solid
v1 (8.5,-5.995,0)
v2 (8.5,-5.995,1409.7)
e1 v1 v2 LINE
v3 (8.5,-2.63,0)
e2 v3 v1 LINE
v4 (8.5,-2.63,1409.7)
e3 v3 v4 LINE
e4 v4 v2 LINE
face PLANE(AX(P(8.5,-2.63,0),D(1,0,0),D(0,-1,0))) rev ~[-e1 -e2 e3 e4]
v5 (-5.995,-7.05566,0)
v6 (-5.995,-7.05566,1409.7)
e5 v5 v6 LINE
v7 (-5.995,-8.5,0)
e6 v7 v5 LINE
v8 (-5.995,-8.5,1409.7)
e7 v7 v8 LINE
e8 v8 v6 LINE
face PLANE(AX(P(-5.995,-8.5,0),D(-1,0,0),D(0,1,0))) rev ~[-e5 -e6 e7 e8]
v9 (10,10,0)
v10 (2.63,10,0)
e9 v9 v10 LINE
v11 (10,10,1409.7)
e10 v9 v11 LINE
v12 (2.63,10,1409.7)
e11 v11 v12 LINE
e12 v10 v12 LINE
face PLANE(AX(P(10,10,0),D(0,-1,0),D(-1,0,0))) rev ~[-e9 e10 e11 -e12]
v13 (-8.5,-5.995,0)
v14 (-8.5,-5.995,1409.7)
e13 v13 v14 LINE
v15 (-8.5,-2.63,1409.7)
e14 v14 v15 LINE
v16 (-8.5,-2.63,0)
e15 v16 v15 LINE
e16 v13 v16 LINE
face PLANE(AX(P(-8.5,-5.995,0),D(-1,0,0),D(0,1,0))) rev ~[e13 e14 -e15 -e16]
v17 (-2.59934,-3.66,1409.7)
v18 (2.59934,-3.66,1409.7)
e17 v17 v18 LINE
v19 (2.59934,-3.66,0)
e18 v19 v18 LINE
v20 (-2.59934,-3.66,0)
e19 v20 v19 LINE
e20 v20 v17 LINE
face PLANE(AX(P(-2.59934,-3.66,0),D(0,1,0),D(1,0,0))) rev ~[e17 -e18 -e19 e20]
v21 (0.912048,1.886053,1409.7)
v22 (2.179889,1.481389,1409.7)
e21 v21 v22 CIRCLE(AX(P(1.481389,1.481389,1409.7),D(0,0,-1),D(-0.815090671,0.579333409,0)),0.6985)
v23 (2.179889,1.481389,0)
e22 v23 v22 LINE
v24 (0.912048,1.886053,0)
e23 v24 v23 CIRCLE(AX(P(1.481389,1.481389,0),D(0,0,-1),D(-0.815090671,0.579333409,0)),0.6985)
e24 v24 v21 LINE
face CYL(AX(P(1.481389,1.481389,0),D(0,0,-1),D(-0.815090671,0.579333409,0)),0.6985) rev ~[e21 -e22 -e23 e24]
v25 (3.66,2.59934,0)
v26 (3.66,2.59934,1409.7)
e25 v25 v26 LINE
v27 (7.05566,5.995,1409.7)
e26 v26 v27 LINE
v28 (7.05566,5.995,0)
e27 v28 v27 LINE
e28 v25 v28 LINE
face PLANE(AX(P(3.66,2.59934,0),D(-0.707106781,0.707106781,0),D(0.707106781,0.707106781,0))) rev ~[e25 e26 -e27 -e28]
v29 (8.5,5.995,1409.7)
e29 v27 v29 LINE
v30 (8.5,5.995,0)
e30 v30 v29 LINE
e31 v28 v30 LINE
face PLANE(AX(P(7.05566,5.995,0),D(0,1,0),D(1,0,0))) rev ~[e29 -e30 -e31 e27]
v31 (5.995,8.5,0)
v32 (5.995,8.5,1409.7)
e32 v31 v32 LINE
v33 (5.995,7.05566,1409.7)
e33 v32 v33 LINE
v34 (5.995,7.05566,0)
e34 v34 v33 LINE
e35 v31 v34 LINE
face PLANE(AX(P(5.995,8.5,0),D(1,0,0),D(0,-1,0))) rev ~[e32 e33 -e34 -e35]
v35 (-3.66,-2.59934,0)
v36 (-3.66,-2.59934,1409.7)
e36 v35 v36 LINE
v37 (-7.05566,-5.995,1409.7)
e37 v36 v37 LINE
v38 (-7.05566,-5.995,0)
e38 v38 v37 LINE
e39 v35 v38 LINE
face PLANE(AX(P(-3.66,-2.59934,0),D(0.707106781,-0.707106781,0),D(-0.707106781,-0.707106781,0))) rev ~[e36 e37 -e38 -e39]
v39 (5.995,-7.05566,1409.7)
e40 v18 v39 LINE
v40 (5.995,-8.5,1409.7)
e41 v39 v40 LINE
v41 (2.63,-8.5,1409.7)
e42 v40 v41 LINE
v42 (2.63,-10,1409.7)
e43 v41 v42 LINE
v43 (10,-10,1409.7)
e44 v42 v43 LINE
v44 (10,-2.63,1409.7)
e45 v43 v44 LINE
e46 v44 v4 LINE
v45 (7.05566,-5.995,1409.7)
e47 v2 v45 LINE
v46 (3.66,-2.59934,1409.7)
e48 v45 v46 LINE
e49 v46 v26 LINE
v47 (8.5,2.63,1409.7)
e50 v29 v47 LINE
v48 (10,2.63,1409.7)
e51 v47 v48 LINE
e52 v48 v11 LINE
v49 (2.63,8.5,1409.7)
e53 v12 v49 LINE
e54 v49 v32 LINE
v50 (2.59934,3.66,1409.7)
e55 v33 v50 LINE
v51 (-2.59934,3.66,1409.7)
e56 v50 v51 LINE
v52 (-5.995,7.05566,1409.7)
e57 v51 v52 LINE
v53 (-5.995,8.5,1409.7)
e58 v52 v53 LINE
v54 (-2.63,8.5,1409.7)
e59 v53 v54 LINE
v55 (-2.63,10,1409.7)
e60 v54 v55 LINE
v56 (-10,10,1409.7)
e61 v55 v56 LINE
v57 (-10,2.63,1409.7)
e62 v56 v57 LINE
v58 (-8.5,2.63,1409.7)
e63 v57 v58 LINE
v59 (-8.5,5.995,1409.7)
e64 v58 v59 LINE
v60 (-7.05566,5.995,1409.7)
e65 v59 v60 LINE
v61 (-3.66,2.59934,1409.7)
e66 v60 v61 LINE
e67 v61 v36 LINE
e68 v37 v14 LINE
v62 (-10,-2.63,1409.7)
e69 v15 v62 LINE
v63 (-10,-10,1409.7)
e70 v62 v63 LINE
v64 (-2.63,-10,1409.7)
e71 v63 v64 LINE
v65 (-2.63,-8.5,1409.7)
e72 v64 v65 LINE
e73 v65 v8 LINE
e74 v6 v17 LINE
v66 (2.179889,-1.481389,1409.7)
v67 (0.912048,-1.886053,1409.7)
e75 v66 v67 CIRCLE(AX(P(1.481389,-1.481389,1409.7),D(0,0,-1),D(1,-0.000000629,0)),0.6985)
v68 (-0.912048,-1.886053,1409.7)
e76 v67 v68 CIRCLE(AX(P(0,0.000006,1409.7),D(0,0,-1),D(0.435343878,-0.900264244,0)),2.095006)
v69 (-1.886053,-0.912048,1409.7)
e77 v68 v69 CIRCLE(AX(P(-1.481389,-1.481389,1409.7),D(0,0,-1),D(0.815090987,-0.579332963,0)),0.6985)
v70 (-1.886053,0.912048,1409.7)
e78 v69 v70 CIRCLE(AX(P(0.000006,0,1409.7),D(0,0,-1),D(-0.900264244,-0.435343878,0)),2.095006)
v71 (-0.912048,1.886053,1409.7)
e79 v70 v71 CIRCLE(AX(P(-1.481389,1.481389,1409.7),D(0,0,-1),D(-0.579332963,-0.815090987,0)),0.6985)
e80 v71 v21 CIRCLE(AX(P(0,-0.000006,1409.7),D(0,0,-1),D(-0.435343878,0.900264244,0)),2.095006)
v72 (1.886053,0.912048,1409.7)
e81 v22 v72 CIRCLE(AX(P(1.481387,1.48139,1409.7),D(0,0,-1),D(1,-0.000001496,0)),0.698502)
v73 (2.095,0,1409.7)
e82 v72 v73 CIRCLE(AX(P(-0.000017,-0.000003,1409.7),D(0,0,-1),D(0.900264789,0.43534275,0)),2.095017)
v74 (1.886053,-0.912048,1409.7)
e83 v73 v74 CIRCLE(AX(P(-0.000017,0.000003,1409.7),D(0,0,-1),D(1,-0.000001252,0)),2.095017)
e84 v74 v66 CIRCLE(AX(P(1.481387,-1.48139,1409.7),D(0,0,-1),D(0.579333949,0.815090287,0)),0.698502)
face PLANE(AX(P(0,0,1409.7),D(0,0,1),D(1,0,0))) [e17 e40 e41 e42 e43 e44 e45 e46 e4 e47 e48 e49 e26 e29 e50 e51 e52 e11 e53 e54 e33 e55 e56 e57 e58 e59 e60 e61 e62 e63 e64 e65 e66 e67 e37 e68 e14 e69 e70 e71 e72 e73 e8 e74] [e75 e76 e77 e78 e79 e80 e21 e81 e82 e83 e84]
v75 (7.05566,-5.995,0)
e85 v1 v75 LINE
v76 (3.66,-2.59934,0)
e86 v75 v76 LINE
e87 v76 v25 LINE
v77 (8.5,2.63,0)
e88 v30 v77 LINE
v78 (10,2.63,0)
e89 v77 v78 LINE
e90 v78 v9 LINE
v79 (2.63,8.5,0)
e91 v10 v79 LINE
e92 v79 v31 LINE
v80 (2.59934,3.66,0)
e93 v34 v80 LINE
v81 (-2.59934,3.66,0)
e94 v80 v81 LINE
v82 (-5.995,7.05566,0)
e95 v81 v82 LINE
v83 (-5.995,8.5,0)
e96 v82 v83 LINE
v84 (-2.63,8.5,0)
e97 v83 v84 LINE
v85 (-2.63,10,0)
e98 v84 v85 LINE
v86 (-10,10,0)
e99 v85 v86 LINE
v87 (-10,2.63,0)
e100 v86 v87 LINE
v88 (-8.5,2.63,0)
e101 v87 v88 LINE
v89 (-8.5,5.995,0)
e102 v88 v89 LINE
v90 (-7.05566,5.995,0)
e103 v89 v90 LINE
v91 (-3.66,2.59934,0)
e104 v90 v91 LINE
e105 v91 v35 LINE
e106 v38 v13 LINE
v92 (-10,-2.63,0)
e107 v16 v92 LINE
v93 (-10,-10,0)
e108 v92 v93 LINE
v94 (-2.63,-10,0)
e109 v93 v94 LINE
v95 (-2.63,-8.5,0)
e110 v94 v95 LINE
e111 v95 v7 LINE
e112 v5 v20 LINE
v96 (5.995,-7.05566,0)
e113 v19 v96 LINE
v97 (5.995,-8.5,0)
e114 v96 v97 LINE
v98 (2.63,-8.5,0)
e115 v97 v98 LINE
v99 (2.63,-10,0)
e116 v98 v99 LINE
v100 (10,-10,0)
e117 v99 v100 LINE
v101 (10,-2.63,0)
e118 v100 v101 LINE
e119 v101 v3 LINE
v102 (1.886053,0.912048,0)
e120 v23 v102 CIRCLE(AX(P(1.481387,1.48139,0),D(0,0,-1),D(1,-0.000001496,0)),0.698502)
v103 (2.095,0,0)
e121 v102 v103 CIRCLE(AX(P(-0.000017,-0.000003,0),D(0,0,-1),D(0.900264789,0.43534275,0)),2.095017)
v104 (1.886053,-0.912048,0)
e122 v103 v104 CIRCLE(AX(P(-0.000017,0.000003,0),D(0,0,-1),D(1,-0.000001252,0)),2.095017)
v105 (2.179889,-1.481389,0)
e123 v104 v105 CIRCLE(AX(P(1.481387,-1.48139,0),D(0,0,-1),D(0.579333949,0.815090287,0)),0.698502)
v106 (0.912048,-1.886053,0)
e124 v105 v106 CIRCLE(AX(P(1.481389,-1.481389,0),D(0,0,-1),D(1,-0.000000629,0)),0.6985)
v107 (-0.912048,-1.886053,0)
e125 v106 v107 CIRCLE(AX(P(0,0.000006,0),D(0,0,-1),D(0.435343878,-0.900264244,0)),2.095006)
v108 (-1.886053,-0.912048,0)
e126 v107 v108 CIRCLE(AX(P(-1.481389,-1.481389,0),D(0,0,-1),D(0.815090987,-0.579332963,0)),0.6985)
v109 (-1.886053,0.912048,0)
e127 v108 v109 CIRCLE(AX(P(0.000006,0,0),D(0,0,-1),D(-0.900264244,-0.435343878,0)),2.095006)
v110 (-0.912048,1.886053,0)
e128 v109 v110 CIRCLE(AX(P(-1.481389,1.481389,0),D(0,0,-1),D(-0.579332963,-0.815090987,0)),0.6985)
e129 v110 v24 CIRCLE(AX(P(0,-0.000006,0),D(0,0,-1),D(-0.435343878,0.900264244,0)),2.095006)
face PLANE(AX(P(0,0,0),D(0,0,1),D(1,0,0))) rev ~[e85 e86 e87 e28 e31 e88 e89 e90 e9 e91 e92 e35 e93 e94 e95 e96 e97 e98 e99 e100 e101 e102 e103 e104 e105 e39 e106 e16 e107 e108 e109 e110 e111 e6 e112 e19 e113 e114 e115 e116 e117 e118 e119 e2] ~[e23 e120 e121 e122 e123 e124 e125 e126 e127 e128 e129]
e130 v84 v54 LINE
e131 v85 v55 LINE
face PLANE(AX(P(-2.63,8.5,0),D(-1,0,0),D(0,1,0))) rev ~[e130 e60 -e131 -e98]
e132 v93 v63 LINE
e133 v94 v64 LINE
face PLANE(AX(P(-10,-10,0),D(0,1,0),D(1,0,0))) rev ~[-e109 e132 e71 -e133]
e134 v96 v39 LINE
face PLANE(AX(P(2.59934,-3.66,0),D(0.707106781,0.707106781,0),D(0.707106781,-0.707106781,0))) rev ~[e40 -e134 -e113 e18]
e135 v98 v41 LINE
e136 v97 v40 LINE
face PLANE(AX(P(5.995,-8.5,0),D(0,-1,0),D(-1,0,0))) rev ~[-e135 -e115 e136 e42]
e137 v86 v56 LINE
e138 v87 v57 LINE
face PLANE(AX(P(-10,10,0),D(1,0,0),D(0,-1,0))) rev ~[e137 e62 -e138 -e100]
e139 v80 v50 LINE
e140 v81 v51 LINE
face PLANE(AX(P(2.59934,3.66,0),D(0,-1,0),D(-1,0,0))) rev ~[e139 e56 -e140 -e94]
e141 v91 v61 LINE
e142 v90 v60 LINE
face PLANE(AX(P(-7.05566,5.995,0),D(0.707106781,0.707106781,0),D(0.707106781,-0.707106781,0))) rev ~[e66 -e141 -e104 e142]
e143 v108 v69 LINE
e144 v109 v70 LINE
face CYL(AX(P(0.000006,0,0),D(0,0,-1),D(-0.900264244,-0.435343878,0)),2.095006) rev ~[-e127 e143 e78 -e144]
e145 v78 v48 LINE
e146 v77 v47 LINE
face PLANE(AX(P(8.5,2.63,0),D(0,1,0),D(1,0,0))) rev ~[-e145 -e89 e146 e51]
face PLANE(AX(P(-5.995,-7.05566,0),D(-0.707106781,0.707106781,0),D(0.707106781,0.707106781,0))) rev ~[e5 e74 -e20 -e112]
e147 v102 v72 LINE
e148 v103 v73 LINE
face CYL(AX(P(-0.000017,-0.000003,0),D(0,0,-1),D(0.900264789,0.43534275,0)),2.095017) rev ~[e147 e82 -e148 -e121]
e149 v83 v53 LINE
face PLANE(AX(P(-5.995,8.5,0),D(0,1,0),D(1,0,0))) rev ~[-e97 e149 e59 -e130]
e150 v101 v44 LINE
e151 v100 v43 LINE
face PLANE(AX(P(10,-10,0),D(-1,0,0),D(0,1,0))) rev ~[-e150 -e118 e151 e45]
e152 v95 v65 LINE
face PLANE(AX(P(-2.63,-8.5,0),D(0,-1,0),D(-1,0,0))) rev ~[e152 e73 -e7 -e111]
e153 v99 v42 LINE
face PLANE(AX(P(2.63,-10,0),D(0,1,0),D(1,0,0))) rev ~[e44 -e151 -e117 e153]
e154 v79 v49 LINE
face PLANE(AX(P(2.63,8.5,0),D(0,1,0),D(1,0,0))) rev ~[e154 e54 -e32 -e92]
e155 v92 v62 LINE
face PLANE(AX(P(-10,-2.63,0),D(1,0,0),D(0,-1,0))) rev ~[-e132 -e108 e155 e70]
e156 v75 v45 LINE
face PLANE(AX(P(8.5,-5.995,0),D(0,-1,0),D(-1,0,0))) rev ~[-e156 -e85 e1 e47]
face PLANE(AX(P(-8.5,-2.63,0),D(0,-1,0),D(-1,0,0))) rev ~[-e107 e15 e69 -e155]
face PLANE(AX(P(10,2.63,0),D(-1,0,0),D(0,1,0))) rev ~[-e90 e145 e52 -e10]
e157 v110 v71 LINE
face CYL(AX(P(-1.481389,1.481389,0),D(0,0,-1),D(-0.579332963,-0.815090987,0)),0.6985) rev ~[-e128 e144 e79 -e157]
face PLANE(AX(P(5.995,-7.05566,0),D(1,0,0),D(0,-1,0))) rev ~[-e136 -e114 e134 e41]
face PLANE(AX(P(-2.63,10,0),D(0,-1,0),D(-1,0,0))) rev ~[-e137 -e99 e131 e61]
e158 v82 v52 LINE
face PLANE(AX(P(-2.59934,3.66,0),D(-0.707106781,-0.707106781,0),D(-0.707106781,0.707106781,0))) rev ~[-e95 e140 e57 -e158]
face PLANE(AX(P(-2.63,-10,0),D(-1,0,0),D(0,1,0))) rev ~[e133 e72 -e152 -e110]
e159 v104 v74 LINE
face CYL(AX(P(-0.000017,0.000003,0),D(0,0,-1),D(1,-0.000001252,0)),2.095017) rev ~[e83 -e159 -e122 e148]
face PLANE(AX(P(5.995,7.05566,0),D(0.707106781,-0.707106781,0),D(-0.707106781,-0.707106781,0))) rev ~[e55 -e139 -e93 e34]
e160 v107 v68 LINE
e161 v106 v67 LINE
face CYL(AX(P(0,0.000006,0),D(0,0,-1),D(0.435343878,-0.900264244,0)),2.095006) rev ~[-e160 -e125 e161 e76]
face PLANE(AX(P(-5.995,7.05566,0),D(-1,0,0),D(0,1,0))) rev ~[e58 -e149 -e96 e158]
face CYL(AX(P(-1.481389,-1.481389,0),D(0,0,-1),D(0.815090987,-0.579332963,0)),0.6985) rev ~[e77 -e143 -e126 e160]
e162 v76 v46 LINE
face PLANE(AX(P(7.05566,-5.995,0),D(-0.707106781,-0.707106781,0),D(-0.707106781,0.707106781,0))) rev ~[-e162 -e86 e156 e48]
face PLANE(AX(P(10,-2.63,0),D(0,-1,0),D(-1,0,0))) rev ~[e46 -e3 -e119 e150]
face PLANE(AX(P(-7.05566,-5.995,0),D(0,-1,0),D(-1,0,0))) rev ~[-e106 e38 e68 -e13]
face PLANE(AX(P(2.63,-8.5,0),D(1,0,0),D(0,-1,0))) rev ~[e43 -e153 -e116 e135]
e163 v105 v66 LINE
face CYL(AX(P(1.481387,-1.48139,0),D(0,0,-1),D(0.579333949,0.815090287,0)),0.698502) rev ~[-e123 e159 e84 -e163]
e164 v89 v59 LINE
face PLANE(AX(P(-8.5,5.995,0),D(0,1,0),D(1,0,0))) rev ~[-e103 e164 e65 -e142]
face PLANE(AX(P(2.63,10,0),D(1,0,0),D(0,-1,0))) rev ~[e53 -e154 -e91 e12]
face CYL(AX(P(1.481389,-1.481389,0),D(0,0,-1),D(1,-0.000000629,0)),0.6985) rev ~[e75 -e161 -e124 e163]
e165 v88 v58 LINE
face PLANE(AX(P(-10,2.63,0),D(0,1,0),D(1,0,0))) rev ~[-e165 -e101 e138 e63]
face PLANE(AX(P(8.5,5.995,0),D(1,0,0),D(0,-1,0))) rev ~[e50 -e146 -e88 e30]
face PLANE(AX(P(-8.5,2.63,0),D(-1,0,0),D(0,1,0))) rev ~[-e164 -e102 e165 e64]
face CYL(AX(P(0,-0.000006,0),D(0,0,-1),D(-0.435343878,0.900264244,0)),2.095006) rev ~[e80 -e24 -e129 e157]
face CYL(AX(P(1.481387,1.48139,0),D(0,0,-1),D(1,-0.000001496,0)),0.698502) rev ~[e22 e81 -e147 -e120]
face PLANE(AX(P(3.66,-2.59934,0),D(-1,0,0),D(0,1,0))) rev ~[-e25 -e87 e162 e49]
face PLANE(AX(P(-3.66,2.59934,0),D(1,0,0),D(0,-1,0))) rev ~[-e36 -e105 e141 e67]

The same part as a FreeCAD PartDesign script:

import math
import FreeCAD as App
import Part
import Sketcher
Q = App.Units.Quantity


def add_polygon(sketch, points):
    """Adds a closed chain of lines whose ends are joined by coincident constraints."""
    first, n = sketch.GeometryCount, len(points)
    for a, b in zip(points, points[1:] + points[:1]):
        sketch.addGeometry(Part.LineSegment(App.Vector(*a, 0), App.Vector(*b, 0)), False)
    for i in range(n):
        sketch.addConstraint(Sketcher.Constraint("Coincident", first + i, 2, first + (i + 1) % n, 1))

doc = App.newDocument("Part")
body = doc.addObject("PartDesign::Body", "Body")

# Sketch on XY plane
sketch1 = body.newObject("Sketcher::SketchObject", "Sketch")
sketch1.AttachmentSupport = (doc.getObject("XY_Plane"), [""])
sketch1.MapMode = "FlatFace"
add_polygon(sketch1, [(10, 2.6), (10, 10), (2.6, 10), (2.6, 8.5), (6, 8.5), (6, 7.1), (2.6, 3.7), (-2.6, 3.7), (-6, 7.1), (-6, 8.5), (-2.6, 8.5), (-2.6, 10), (-10, 10), (-10, 2.6), (-8.5, 2.6), (-8.5, 6), (-7.1, 6), (-3.7, 2.6), (-3.7, -2.6), (-7.1, -6), (-8.5, -6), (-8.5, -2.6), (-10, -2.6), (-10, -10), (-2.6, -10), (-2.6, -8.5), (-6, -8.5), (-6, -7.1), (-2.6, -3.7), (2.6, -3.7), (6, -7.1), (6, -8.5), (2.6, -8.5), (2.6, -10), (10, -10), (10, -2.6), (8.5, -2.6), (8.5, -6), (7.1, -6), (3.7, -2.6), (3.7, 2.6), (7.1, 6), (8.5, 6), (8.5, 2.6)])  # lines 0-43
sketch1.addGeometry(Part.ArcOfCircle(Part.Circle(App.Vector(1.5, 1.5, 0), App.Vector(0, 0, 1), 0.7), math.radians(-55), math.radians(0)), False)  # 44
sketch1.addGeometry(Part.ArcOfCircle(Part.Circle(App.Vector(0, 0, 0), App.Vector(0, 0, 1), 2.1), math.radians(0), math.radians(26)), False)  # 45
sketch1.addGeometry(Part.ArcOfCircle(Part.Circle(App.Vector(0, 0, 0), App.Vector(0, 0, 1), 2.1), math.radians(-26), math.radians(0)), False)  # 46
sketch1.addGeometry(Part.ArcOfCircle(Part.Circle(App.Vector(1.5, -1.5, 0), App.Vector(0, 0, 1), 0.7), math.radians(0), math.radians(55)), False)  # 47
sketch1.addGeometry(Part.ArcOfCircle(Part.Circle(App.Vector(1.5, -1.5, 0), App.Vector(0, 0, 1), 0.7), math.radians(-145), math.radians(0)), False)  # 48
sketch1.addGeometry(Part.ArcOfCircle(Part.Circle(App.Vector(0, 0, 0), App.Vector(0, 0, 1), 2.1), math.radians(-116), math.radians(-64)), False)  # 49
sketch1.addGeometry(Part.ArcOfCircle(Part.Circle(App.Vector(-1.5, -1.5, 0), App.Vector(0, 0, 1), 0.7), math.radians(125), math.radians(325)), False)  # 50
sketch1.addGeometry(Part.ArcOfCircle(Part.Circle(App.Vector(0, 0, 0), App.Vector(0, 0, 1), 2.1), math.radians(154), math.radians(206)), False)  # 51
sketch1.addGeometry(Part.ArcOfCircle(Part.Circle(App.Vector(-1.5, 1.5, 0), App.Vector(0, 0, 1), 0.7), math.radians(35), math.radians(235)), False)  # 52
sketch1.addGeometry(Part.ArcOfCircle(Part.Circle(App.Vector(0, 0, 0), App.Vector(0, 0, 1), 2.1), math.radians(64), math.radians(116)), False)  # 53
sketch1.addGeometry(Part.ArcOfCircle(Part.Circle(App.Vector(1.5, 1.5, 0), App.Vector(0, 0, 1), 0.7), math.radians(0), math.radians(145)), False)  # 54
sketch1.addConstraint(Sketcher.Constraint("Coincident", 44, 1, 45, 2))
sketch1.addConstraint(Sketcher.Constraint("Coincident", 45, 1, 46, 2))
sketch1.addConstraint(Sketcher.Constraint("Coincident", 46, 1, 47, 2))
sketch1.addConstraint(Sketcher.Constraint("Coincident", 47, 1, 48, 2))
sketch1.addConstraint(Sketcher.Constraint("Coincident", 48, 1, 49, 2))
sketch1.addConstraint(Sketcher.Constraint("Coincident", 49, 1, 50, 2))
sketch1.addConstraint(Sketcher.Constraint("Coincident", 50, 1, 51, 2))
sketch1.addConstraint(Sketcher.Constraint("Coincident", 51, 1, 52, 2))
sketch1.addConstraint(Sketcher.Constraint("Coincident", 52, 1, 53, 2))
sketch1.addConstraint(Sketcher.Constraint("Coincident", 53, 1, 54, 2))
sketch1.addConstraint(Sketcher.Constraint("Coincident", 54, 1, 44, 2))
sketch1.addConstraint(Sketcher.Constraint("Vertical", 0))
sketch1.addConstraint(Sketcher.Constraint("Horizontal", 1))
sketch1.addConstraint(Sketcher.Constraint("Vertical", 2))
sketch1.addConstraint(Sketcher.Constraint("Horizontal", 3))
sketch1.addConstraint(Sketcher.Constraint("Vertical", 4))
sketch1.addConstraint(Sketcher.Constraint("Horizontal", 6))
sketch1.addConstraint(Sketcher.Constraint("Vertical", 8))
sketch1.addConstraint(Sketcher.Constraint("Horizontal", 9))
sketch1.addConstraint(Sketcher.Constraint("Vertical", 10))
sketch1.addConstraint(Sketcher.Constraint("Horizontal", 11))
sketch1.addConstraint(Sketcher.Constraint("Vertical", 12))
sketch1.addConstraint(Sketcher.Constraint("Horizontal", 13))
sketch1.addConstraint(Sketcher.Constraint("Vertical", 14))
sketch1.addConstraint(Sketcher.Constraint("Horizontal", 15))
sketch1.addConstraint(Sketcher.Constraint("Vertical", 17))
sketch1.addConstraint(Sketcher.Constraint("Horizontal", 19))
sketch1.addConstraint(Sketcher.Constraint("Vertical", 20))
sketch1.addConstraint(Sketcher.Constraint("Horizontal", 21))
sketch1.addConstraint(Sketcher.Constraint("Vertical", 22))
sketch1.addConstraint(Sketcher.Constraint("Horizontal", 23))
sketch1.addConstraint(Sketcher.Constraint("Vertical", 24))
sketch1.addConstraint(Sketcher.Constraint("Horizontal", 25))
sketch1.addConstraint(Sketcher.Constraint("Vertical", 26))
sketch1.addConstraint(Sketcher.Constraint("Horizontal", 28))
sketch1.addConstraint(Sketcher.Constraint("Vertical", 30))
sketch1.addConstraint(Sketcher.Constraint("Horizontal", 31))
sketch1.addConstraint(Sketcher.Constraint("Vertical", 32))
sketch1.addConstraint(Sketcher.Constraint("Horizontal", 33))
sketch1.addConstraint(Sketcher.Constraint("Vertical", 34))
sketch1.addConstraint(Sketcher.Constraint("Horizontal", 35))
sketch1.addConstraint(Sketcher.Constraint("Vertical", 36))
sketch1.addConstraint(Sketcher.Constraint("Horizontal", 37))
sketch1.addConstraint(Sketcher.Constraint("Vertical", 39))
sketch1.addConstraint(Sketcher.Constraint("Horizontal", 41))
sketch1.addConstraint(Sketcher.Constraint("Vertical", 42))
sketch1.addConstraint(Sketcher.Constraint("Horizontal", 43))
sketch1.addConstraint(Sketcher.Constraint("Coincident", 49, 3, -1, 1))
sketch1.addConstraint(Sketcher.Constraint("Coincident", 51, 3, -1, 1))
sketch1.addConstraint(Sketcher.Constraint("Coincident", 53, 3, -1, 1))
sketch1.addConstraint(Sketcher.Constraint("Coincident", 46, 3, 45, 3))
sketch1.addConstraint(Sketcher.Constraint("Coincident", 48, 3, 47, 3))
sketch1.addConstraint(Sketcher.Constraint("Coincident", 54, 3, 44, 3))
sketch1.addConstraint(Sketcher.Constraint("Equal", 44, 47))
sketch1.addConstraint(Sketcher.Constraint("Equal", 48, 50))
sketch1.addConstraint(Sketcher.Constraint("Equal", 49, 51))
sketch1.addConstraint(Sketcher.Constraint("Equal", 50, 52))
sketch1.addConstraint(Sketcher.Constraint("Equal", 51, 53))
sketch1.addConstraint(Sketcher.Constraint("Symmetric", 44, 3, 50, 3, -1, 1))
sketch1.addConstraint(Sketcher.Constraint("Symmetric", 47, 3, 52, 3, -1, 1))
sketch1.addConstraint(Sketcher.Constraint("Symmetric", 0, 2, 22, 2, -1, 1))
sketch1.addConstraint(Sketcher.Constraint("Symmetric", 2, 2, 24, 2, -1, 1))
sketch1.addConstraint(Sketcher.Constraint("Symmetric", 4, 2, 26, 2, -1, 1))
sketch1.addConstraint(Sketcher.Constraint("Symmetric", 5, 2, 27, 2, -1, 1))
sketch1.addConstraint(Sketcher.Constraint("Symmetric", 7, 2, 29, 2, -1, 1))
sketch1.addConstraint(Sketcher.Constraint("Symmetric", 9, 2, 31, 2, -1, 1))
sketch1.addConstraint(Sketcher.Constraint("Symmetric", 11, 2, 33, 2, -1, 1))
sketch1.addConstraint(Sketcher.Constraint("Symmetric", 13, 2, 35, 2, -1, 1))
sketch1.addConstraint(Sketcher.Constraint("Symmetric", 15, 2, 37, 2, -1, 1))
sketch1.addConstraint(Sketcher.Constraint("Symmetric", 16, 2, 38, 2, -1, 1))
sketch1.addConstraint(Sketcher.Constraint("Symmetric", 18, 2, 40, 2, -1, 1))
sketch1.addConstraint(Sketcher.Constraint("Symmetric", 20, 2, 42, 2, -1, 1))
sketch1.addConstraint(Sketcher.Constraint("Symmetric", 47, 3, 50, 3, -2))
sketch1.addConstraint(Sketcher.Constraint("Symmetric", 4, 2, 7, 2, -2))
sketch1.addConstraint(Sketcher.Constraint("Symmetric", 2, 2, 9, 2, -2))
sketch1.addConstraint(Sketcher.Constraint("Symmetric", 0, 2, 11, 2, -2))
sketch1.addConstraint(Sketcher.Constraint("Symmetric", 20, 2, 35, 2, -2))
sketch1.addConstraint(Sketcher.Constraint("Symmetric", 18, 2, 37, 2, -2))
sketch1.addConstraint(Sketcher.Constraint("PointOnObject", 45, 1, -1))
sketch1.addConstraint(Sketcher.Constraint("Perpendicular", 5, 7))
sketch1.addConstraint(Sketcher.Constraint("Parallel", 7, 16))
sketch1.addConstraint(Sketcher.Constraint("Perpendicular", 16, 18))
sketch1.addConstraint(Sketcher.Constraint("Perpendicular", 27, 29))
sketch1.addConstraint(Sketcher.Constraint("Perpendicular", 38, 40))
sketch1.addConstraint(Sketcher.Constraint("Horizontal", 17, 2, 38, 2))
sketch1.addConstraint(Sketcher.Constraint("Horizontal", 50, 3, 47, 1))
sketch1.addConstraint(Sketcher.Constraint("Horizontal", 46, 1, 50, 1))
sketch1.addConstraint(Sketcher.Constraint("Horizontal", 44, 1, 51, 1))
sketch1.addConstraint(Sketcher.Constraint("Horizontal", 52, 3, 54, 1))
sketch1.addConstraint(Sketcher.Constraint("Equal", 33, 0))
sketch1.addConstraint(Sketcher.Constraint("Equal", 43, 2))
sketch1.addConstraint(Sketcher.Constraint("Equal", 41, 4))
sketch1.addConstraint(Sketcher.Constraint("Equal", 31, 14))
sketch1.addConstraint(Sketcher.Constraint("Equal", 28, 17))
sketch1.addConstraint(Sketcher.Constraint("Equal", 7, 16))
sketch1.addConstraint(Sketcher.Constraint("Radius", 44, Q("0.0275001 in")))
sketch1.addConstraint(Sketcher.Constraint("DistanceX", 1, 2, 1, 1, 7.37))
sketch1.addConstraint(Sketcher.Constraint("DistanceX", 3, 1, 3, 2, 3.365))
sketch1.addConstraint(Sketcher.Constraint("DistanceX", 13, 1, 13, 2, 1.5))
sketch1.addConstraint(Sketcher.Constraint("Radius", 45, 2.095017))
sketch1.addConstraint(Sketcher.Constraint("Radius", 49, 2.095006))
sketch1.addConstraint(Sketcher.Constraint("DistanceX", 6, 2, 6, 1, 5.19868))
sketch1.addConstraint(Sketcher.Constraint("DistanceX", 15, 1, 15, 2, 1.44434))
sketch1.addConstraint(Sketcher.Constraint("DistanceX", -1, 1, 0, 2, 10.0))
sketch1.addConstraint(Sketcher.Constraint("DistanceY", -1, 1, 44, 3, 1.48139))
sketch1.addConstraint(Sketcher.Constraint("DistanceX", -1, 1, 48, 3, 1.481389))
pad1 = body.newObject("PartDesign::Pad", "Pad")
pad1.Profile = sketch1
pad1.Length = Q("55.5 in")

doc.recompute()
